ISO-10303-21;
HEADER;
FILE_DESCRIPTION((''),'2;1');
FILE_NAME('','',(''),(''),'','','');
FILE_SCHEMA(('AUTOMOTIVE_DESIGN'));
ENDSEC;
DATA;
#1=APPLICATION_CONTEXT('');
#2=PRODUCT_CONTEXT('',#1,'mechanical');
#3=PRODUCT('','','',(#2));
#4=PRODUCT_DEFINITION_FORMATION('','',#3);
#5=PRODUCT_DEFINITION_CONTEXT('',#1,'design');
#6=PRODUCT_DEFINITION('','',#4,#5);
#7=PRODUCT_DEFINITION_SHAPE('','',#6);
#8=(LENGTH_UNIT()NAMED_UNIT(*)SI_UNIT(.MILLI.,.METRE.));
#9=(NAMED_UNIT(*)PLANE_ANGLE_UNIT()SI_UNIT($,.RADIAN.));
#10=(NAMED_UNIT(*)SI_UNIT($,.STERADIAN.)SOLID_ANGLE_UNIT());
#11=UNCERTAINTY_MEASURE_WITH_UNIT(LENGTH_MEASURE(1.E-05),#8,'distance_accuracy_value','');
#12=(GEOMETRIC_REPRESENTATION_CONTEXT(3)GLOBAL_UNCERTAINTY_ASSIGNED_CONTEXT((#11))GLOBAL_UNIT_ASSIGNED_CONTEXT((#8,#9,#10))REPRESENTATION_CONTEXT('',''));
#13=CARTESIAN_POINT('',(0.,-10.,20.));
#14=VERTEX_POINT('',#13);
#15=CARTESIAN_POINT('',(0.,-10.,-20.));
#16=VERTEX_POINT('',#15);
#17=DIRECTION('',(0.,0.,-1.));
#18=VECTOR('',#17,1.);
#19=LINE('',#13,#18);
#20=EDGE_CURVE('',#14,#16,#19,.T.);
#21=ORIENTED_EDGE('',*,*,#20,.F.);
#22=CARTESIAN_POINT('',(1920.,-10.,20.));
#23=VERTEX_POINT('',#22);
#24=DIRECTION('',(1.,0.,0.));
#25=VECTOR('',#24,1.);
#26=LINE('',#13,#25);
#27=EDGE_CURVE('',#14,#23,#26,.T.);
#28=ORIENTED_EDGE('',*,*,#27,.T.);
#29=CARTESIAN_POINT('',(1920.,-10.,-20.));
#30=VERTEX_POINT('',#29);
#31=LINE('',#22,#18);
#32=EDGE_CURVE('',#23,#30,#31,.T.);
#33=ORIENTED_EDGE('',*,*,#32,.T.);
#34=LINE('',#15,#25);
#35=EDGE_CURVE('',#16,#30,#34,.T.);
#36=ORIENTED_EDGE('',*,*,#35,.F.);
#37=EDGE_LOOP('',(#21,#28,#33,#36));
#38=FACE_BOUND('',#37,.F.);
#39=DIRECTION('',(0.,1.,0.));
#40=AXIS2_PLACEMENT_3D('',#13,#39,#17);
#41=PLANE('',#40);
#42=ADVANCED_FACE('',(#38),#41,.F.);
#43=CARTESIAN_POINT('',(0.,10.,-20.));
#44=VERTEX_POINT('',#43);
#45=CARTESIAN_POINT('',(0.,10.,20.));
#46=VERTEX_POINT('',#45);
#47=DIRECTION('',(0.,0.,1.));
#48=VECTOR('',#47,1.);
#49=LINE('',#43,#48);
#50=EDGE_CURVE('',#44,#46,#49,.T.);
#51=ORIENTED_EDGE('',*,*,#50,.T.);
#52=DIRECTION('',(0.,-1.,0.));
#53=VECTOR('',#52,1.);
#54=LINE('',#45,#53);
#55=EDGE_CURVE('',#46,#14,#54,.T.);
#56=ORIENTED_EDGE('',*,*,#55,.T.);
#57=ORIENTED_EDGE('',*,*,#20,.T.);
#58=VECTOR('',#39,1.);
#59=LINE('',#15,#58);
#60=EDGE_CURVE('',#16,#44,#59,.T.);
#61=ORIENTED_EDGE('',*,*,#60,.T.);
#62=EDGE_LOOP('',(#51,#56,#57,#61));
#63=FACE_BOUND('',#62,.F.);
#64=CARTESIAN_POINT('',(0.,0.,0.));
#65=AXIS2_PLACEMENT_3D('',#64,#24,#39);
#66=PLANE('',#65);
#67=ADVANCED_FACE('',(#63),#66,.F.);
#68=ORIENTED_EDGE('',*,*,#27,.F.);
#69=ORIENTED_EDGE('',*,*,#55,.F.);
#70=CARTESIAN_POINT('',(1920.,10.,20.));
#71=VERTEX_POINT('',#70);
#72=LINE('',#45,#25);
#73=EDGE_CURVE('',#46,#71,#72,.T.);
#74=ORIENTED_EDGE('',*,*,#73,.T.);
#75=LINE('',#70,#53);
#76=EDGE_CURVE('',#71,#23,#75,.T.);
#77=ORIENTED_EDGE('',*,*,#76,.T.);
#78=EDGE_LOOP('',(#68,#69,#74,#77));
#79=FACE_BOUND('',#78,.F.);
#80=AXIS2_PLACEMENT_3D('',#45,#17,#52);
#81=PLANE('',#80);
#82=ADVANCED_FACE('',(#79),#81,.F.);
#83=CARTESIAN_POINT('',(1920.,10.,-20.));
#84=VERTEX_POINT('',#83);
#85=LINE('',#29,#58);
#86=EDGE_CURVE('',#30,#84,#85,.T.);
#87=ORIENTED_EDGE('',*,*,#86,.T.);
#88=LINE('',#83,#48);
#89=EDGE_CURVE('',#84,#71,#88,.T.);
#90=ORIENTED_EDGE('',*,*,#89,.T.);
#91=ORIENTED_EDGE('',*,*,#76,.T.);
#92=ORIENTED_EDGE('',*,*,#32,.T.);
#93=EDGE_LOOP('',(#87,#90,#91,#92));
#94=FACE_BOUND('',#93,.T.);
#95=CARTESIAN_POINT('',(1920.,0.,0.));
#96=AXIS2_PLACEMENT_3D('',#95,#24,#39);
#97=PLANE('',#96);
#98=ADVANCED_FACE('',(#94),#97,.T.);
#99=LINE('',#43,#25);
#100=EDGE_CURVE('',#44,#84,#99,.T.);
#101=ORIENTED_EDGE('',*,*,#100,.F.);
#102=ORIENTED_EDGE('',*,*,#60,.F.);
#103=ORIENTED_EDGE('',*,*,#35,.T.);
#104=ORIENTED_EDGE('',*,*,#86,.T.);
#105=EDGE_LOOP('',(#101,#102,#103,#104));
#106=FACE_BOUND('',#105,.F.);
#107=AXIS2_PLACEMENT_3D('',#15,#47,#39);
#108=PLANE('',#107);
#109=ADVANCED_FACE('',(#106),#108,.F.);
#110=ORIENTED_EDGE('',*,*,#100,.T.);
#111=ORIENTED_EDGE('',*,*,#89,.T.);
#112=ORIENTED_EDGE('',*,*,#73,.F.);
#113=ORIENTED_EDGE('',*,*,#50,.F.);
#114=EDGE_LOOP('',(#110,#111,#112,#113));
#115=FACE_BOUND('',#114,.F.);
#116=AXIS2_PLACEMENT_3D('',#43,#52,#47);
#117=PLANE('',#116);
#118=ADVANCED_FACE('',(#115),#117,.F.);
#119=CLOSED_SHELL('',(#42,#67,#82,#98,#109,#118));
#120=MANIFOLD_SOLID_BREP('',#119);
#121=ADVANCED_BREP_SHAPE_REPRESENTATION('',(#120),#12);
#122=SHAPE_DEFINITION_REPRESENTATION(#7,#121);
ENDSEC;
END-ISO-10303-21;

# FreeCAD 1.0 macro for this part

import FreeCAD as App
import Part
import Sketcher
from FreeCAD import Vector
Q = App.Units.Quantity


def add_polygon(sketch, points):
    """Adds a closed chain of lines whose ends are joined by coincident constraints."""
    first, n = sketch.GeometryCount, len(points)
    for a, b in zip(points, points[1:] + points[:1]):
        sketch.addGeometry(Part.LineSegment(App.Vector(*a, 0), App.Vector(*b, 0)), False)
    for i in range(n):
        sketch.addConstraint(Sketcher.Constraint("Coincident", first + i, 2, first + (i + 1) % n, 1))

doc = App.newDocument("Part")
body = doc.addObject("PartDesign::Body", "Body")

sketch1 = body.newObject("Sketcher::SketchObject", "Sketch")
sketch1.AttachmentSupport = (doc.getObject("YZ_Plane"), [""])
sketch1.MapMode = "FlatFace"
add_polygon(sketch1, [(-10, 20), (-10, -20), (10, -20), (10, 20)])
sketch1.addConstraint(Sketcher.Constraint("Vertical", 0))
sketch1.addConstraint(Sketcher.Constraint("Horizontal", 1))
sketch1.addConstraint(Sketcher.Constraint("Vertical", 2))
sketch1.addConstraint(Sketcher.Constraint("Horizontal", 3))
sketch1.addConstraint(Sketcher.Constraint("Symmetric", 0, 2, 2, 2, -1, 1))
sketch1.addConstraint(Sketcher.Constraint("DistanceX", 1, 1, 1, 2, Q("20 mm")))
sketch1.addConstraint(Sketcher.Constraint("DistanceY", 0, 2, 0, 1, Q("40 mm")))
pad1 = body.newObject("PartDesign::Pad", "Pad")
pad1.Profile = sketch1
pad1.Length = 1920

doc.recompute()
